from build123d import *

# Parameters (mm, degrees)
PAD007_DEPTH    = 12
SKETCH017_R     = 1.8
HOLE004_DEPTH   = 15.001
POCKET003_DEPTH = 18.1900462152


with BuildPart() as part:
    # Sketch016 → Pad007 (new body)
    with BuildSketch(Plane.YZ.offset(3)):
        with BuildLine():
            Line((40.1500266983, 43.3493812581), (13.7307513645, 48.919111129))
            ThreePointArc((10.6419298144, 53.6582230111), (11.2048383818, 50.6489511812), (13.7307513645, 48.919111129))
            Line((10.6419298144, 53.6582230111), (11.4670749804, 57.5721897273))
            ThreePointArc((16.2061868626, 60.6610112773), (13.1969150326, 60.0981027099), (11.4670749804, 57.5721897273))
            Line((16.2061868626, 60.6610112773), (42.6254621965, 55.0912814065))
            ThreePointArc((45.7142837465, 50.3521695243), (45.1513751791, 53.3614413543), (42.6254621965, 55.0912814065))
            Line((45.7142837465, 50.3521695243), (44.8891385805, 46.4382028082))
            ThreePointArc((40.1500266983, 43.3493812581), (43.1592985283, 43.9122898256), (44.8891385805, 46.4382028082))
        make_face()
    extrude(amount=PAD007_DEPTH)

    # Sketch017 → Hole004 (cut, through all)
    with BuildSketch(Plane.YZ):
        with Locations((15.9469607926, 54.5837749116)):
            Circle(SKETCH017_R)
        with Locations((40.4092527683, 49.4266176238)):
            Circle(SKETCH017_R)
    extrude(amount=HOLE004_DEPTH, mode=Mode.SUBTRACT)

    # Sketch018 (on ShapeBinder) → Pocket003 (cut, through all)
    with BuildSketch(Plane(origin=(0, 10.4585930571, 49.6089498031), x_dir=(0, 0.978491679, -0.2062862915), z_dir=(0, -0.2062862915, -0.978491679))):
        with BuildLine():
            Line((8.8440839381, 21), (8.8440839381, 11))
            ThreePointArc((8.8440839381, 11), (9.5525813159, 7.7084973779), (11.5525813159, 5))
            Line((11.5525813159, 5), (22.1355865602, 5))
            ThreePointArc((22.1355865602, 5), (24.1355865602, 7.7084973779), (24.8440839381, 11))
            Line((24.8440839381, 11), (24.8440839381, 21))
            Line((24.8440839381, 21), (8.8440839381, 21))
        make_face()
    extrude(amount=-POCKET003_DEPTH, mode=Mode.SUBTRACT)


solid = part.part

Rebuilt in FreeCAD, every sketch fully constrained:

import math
import FreeCAD as App
import Part
import Sketcher
from FreeCAD import Vector
Q = App.Units.Quantity

doc = App.newDocument("Part")
body = doc.addObject("PartDesign::Body", "Body")

# Sketch on YZ plane
sketch1 = body.newObject("Sketcher::SketchObject", "Sketch")
sketch1.AttachmentSupport = (doc.getObject("YZ_Plane"), [""])
sketch1.MapMode = "FlatFace"
sketch1.AttachmentOffset = App.Placement(Vector(0, 0, 3), App.Rotation())
sketch1.addGeometry(Part.LineSegment(Vector(13.730751, 48.919111, 0), Vector(40.150027, 43.349381, 0)), False)
sketch1.addGeometry(Part.ArcOfCircle(Part.Circle(Vector(40.975172, 47.263348, 0), Vector(0, 0, 1), 4), math.radians(-101.904808), math.radians(-11.904808)), False)
sketch1.addGeometry(Part.LineSegment(Vector(44.889139, 46.438203, 0), Vector(45.714284, 50.35217, 0)), False)
sketch1.addGeometry(Part.ArcOfCircle(Part.Circle(Vector(41.800317, 51.177315, 0), Vector(0, 0, 1), 4), math.radians(-11.904808), math.radians(78.095192)), False)
sketch1.addGeometry(Part.LineSegment(Vector(42.625462, 55.091281, 0), Vector(16.206187, 60.661011, 0)), False)
sketch1.addGeometry(Part.ArcOfCircle(Part.Circle(Vector(15.381042, 56.747045, 0), Vector(0, 0, 1), 4), math.radians(78.095192), math.radians(168.095192)), False)
sketch1.addGeometry(Part.LineSegment(Vector(11.467075, 57.57219, 0), Vector(10.64193, 53.658223, 0)), False)
sketch1.addGeometry(Part.ArcOfCircle(Part.Circle(Vector(14.555897, 52.833078, 0), Vector(0, 0, 1), 4), math.radians(168.095192), math.radians(258.095192)), False)
sketch1.addConstraint(Sketcher.Constraint("Tangent", 0, 2, 1, 1))
sketch1.addConstraint(Sketcher.Constraint("Tangent", 1, 2, 2, 1))
sketch1.addConstraint(Sketcher.Constraint("Tangent", 2, 2, 3, 1))
sketch1.addConstraint(Sketcher.Constraint("Tangent", 3, 2, 4, 1))
sketch1.addConstraint(Sketcher.Constraint("Tangent", 4, 2, 5, 1))
sketch1.addConstraint(Sketcher.Constraint("Tangent", 5, 2, 6, 1))
sketch1.addConstraint(Sketcher.Constraint("Tangent", 6, 2, 7, 1))
sketch1.addConstraint(Sketcher.Constraint("Tangent", 7, 2, 0, 1))
sketch1.addConstraint(Sketcher.Constraint("Equal", 1, 3))
sketch1.addConstraint(Sketcher.Constraint("Equal", 3, 5))
sketch1.addConstraint(Sketcher.Constraint("Equal", 5, 7))
sketch1.addConstraint(Sketcher.Constraint("Perpendicular", 0, 2))
sketch1.addConstraint(Sketcher.Constraint("Perpendicular", 2, 4))
sketch1.addConstraint(Sketcher.Constraint("Perpendicular", 4, 6))
sketch1.addConstraint(Sketcher.Constraint("Radius", 1, Q("4 mm")))
sketch1.addConstraint(Sketcher.Constraint("Distance", 0, Q("27 mm")))
sketch1.addConstraint(Sketcher.Constraint("Distance", 2, Q("4 mm")))
sketch1.addConstraint(Sketcher.Constraint("DistanceY", 0, 2, 3, 2, Q("11.7419 mm")))
sketch1.addConstraint(Sketcher.Constraint("DistanceX", -1, 1, 1, 3, Q("40.975172 mm")))
sketch1.addConstraint(Sketcher.Constraint("DistanceY", -1, 1, 0, 2, Q("43.349381 mm")))
pad1 = body.newObject("PartDesign::Pad", "Pad")
pad1.Profile = sketch1
pad1.Length = 12

# Sketch on YZ plane
sketch2 = body.newObject("Sketcher::SketchObject", "Sketch001")
sketch2.AttachmentSupport = (doc.getObject("YZ_Plane"), [""])
sketch2.MapMode = "FlatFace"
sketch2.addGeometry(Part.Circle(Vector(15.946961, 54.583775, 0), Vector(0, 0, 1), 1.8), False)
sketch2.addGeometry(Part.Circle(Vector(40.409253, 49.426618, 0), Vector(0, 0, 1), 1.8), False)
sketch2.addConstraint(Sketcher.Constraint("Equal", 0, 1))
sketch2.addConstraint(Sketcher.Constraint("Diameter", 0, Q("3.6 mm")))
sketch2.addConstraint(Sketcher.Constraint("DistanceX", -1, 1, 0, 3, Q("15.946961 mm")))
sketch2.addConstraint(Sketcher.Constraint("DistanceX", 0, 3, 1, 3, Q("24.462292 mm")))
sketch2.addConstraint(Sketcher.Constraint("DistanceY", -1, 1, 0, 3, Q("54.583775 mm")))
sketch2.addConstraint(Sketcher.Constraint("DistanceY", -1, 1, 1, 3, Q("49.426618 mm")))
pocket1 = body.newObject("PartDesign::Pocket", "Pocket")
pocket1.Profile = sketch2
pocket1.Type = "ThroughAll"
pocket1.Reversed = True

# Sketch on an angled plane
sketch3 = body.newObject("Sketcher::SketchObject", "Sketch002")
sketch3.Placement = App.Placement(Vector(0, 10.458593, 49.60895), App.Rotation(Vector(0, 0.978491679, -0.206286292), Vector(1, 0, 0), Vector(0, -0.206286292, -0.978491679), "ZXY"))
sketch3.addGeometry(Part.LineSegment(Vector(8.844084, 21, 0), Vector(8.844084, 11, 0)), False)
sketch3.addGeometry(Part.ArcOfCircle(Part.Circle(Vector(16.844084, 11, 0), Vector(0, 0, 1), 8), math.radians(180), math.radians(228.590378)), False)
sketch3.addGeometry(Part.LineSegment(Vector(11.552581, 5, 0), Vector(22.135587, 5, 0)), False)
sketch3.addGeometry(Part.ArcOfCircle(Part.Circle(Vector(16.844084, 11, 0), Vector(0, 0, 1), 8), math.radians(-48.590378), math.radians(0)), False)
sketch3.addGeometry(Part.LineSegment(Vector(24.844084, 11, 0), Vector(24.844084, 21, 0)), False)
sketch3.addGeometry(Part.LineSegment(Vector(24.844084, 21, 0), Vector(8.844084, 21, 0)), False)
sketch3.addConstraint(Sketcher.Constraint("Tangent", 0, 2, 1, 1))
sketch3.addConstraint(Sketcher.Constraint("Coincident", 1, 2, 2, 1))
sketch3.addConstraint(Sketcher.Constraint("Coincident", 2, 2, 3, 1))
sketch3.addConstraint(Sketcher.Constraint("Tangent", 3, 2, 4, 1))
sketch3.addConstraint(Sketcher.Constraint("Coincident", 4, 2, 5, 1))
sketch3.addConstraint(Sketcher.Constraint("Coincident", 5, 2, 0, 1))
sketch3.addConstraint(Sketcher.Constraint("Vertical", 0))
sketch3.addConstraint(Sketcher.Constraint("Horizontal", 2))
sketch3.addConstraint(Sketcher.Constraint("Vertical", 4))
sketch3.addConstraint(Sketcher.Constraint("Horizontal", 5))
sketch3.addConstraint(Sketcher.Constraint("Coincident", 3, 3, 1, 3))
sketch3.addConstraint(Sketcher.Constraint("Equal", 1, 3))
sketch3.addConstraint(Sketcher.Constraint("Radius", 1, Q("8 mm")))
sketch3.addConstraint(Sketcher.Constraint("DistanceY", 0, 2, 0, 1, Q("10 mm")))
sketch3.addConstraint(Sketcher.Constraint("DistanceY", -1, 1, 1, 3, Q("11 mm")))
sketch3.addConstraint(Sketcher.Constraint("DistanceY", -1, 1, 1, 2, Q("5 mm")))
sketch3.addConstraint(Sketcher.Constraint("DistanceX", -1, 1, 1, 2, Q("11.552581 mm")))
pocket2 = body.newObject("PartDesign::Pocket", "Pocket001")
pocket2.Profile = sketch3
pocket2.Type = "ThroughAll"

doc.recompute()
